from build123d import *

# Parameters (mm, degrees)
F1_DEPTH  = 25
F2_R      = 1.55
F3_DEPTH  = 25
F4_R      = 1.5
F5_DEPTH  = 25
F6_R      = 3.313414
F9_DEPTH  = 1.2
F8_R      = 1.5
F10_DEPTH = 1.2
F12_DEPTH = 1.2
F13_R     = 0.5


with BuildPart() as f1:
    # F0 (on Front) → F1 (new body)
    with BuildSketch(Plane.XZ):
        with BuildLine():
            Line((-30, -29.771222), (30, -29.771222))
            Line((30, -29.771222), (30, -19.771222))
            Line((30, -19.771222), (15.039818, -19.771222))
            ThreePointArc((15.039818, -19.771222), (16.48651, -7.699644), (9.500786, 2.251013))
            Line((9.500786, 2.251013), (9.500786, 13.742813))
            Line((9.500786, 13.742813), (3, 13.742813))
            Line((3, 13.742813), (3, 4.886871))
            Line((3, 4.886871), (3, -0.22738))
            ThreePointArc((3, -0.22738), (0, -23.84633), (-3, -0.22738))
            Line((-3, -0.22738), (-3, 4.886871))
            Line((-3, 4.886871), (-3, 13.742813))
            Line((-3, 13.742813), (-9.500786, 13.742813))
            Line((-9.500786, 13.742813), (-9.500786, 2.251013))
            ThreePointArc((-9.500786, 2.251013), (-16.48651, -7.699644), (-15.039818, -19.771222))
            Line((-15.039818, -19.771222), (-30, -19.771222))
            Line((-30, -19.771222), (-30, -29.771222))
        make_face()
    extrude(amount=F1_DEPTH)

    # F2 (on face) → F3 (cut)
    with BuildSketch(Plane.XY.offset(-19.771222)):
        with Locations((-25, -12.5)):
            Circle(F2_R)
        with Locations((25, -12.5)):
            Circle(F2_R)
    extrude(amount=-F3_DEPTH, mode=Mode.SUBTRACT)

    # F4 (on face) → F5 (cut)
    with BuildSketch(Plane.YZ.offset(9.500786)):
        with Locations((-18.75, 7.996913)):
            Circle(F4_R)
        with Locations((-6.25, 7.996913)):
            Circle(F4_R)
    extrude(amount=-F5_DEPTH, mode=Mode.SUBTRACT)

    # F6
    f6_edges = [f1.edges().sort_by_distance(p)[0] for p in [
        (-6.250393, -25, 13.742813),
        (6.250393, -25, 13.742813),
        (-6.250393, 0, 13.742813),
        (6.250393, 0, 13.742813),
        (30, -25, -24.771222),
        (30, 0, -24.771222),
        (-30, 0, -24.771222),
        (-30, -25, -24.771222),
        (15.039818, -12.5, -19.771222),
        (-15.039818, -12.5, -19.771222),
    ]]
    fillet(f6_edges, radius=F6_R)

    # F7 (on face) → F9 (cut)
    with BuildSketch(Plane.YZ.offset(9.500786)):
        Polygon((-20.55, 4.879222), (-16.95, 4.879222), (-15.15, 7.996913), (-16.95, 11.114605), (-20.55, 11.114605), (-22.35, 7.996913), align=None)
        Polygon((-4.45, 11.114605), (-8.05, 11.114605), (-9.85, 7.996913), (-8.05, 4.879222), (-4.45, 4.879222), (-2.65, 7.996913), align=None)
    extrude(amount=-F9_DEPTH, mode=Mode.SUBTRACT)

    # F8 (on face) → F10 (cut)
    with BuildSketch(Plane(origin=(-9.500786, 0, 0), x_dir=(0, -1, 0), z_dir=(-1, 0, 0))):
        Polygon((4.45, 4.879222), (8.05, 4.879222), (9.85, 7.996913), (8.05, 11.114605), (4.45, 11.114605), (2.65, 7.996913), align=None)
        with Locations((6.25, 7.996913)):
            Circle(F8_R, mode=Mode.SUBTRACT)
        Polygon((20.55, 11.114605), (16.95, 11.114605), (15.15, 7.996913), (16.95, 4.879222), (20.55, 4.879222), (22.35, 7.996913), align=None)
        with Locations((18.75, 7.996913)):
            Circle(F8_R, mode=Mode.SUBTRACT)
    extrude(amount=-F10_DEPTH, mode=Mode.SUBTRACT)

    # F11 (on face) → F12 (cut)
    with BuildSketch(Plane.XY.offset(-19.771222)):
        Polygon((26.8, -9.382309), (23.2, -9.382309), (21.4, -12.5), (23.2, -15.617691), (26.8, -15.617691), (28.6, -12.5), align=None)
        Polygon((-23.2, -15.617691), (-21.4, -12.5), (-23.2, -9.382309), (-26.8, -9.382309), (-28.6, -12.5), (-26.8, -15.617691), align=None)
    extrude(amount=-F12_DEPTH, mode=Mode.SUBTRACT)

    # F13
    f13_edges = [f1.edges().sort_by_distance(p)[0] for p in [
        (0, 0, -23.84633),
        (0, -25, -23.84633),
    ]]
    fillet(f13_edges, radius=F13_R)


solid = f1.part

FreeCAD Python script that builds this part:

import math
import FreeCAD as App
import Part
import Sketcher
Q = App.Units.Quantity


def edges_at(feature, points):
    """Names of the edges that pass closest to the given points."""
    edges = feature.Shape.Edges
    near = lambda p: min(range(len(edges)), key=lambda i: edges[i].distToShape(Part.Vertex(*p))[0])
    return sorted({f"Edge{near(p) + 1}" for p in points})

doc = App.newDocument("Part")
params = doc.addObject("Spreadsheet::Sheet", "Params")
for row, (alias, value) in enumerate([
    ("sketch1_radius", "17.000002 mm"),
    ("sketch1_radius2", "12 mm"),
    ("sketch1_width", "60 mm"),
    ("sketch1_height", "10 mm"),
    ("pad1_length", "25 mm"),
    ("sketch2_diameter", "3.1 mm"),
    ("pocket1_length", "25 mm"),
    ("sketch3_diameter", "3 mm"),
    ("pocket2_length", "25 mm"),
    ("fillet_radius", "3.313414 mm"),
    ("sketch4_width", "3.6 mm"),
    ("sketch4_length", "3.6 mm"),
    ("pocket3_length", "1.2 mm"),
    ("sketch5_diameter", "3 mm"),
    ("sketch5_width", "3.6 mm"),
    ("sketch5_length", "3.6 mm"),
    ("pocket4_length", "1.2 mm"),
    ("sketch6_width", "3.6 mm"),
    ("sketch6_length", "3.6 mm"),
    ("pocket5_length", "1.2 mm"),
    ("fillet2_radius", "0.5 mm"),
], start=1):
    params.set(f"A{row}", alias)
    params.set(f"B{row}", "=" + value)
    params.setAlias(f"B{row}", alias)

body = doc.addObject("PartDesign::Body", "Body")

sketch1 = body.newObject("Sketcher::SketchObject", "Sketch")
sketch1.AttachmentSupport = (doc.getObject("XZ_Plane"), [""])
sketch1.MapMode = "FlatFace"
sketch1.addGeometry(Part.LineSegment(App.Vector(-30, -30, 0), App.Vector(30, -30, 0)), False)
sketch1.addGeometry(Part.LineSegment(App.Vector(30, -30, 0), App.Vector(30, -20, 0)), False)
sketch1.addGeometry(Part.LineSegment(App.Vector(30, -20, 0), App.Vector(15, -20, 0)), False)
sketch1.addGeometry(Part.ArcOfCircle(Part.Circle(App.Vector(0, -12, 0), App.Vector(0, 0, 1), 17), math.radians(-28), math.radians(56)), False)
sketch1.addGeometry(Part.LineSegment(App.Vector(10, 2, 0), App.Vector(10, 14, 0)), False)
sketch1.addGeometry(Part.LineSegment(App.Vector(10, 14, 0), App.Vector(3, 14, 0)), False)
sketch1.addGeometry(Part.LineSegment(App.Vector(3, 14, 0), App.Vector(3, 0, 0)), False)
sketch1.addGeometry(Part.ArcOfCircle(Part.Circle(App.Vector(0, -12, 0), App.Vector(0, 0, 1), 12), math.radians(104), math.radians(436)), False)
sketch1.addGeometry(Part.LineSegment(App.Vector(-3, 0, 0), App.Vector(-3, 14, 0)), False)
sketch1.addGeometry(Part.LineSegment(App.Vector(-3, 14, 0), App.Vector(-10, 14, 0)), False)
sketch1.addGeometry(Part.LineSegment(App.Vector(-10, 14, 0), App.Vector(-10, 2, 0)), False)
sketch1.addGeometry(Part.ArcOfCircle(Part.Circle(App.Vector(0, -12, 0), App.Vector(0, 0, 1), 17), math.radians(124), math.radians(208)), False)
sketch1.addGeometry(Part.LineSegment(App.Vector(-15, -20, 0), App.Vector(-30, -20, 0)), False)
sketch1.addGeometry(Part.LineSegment(App.Vector(-30, -20, 0), App.Vector(-30, -30, 0)), False)
sketch1.addConstraint(Sketcher.Constraint("Coincident", 0, 2, 1, 1))
sketch1.addConstraint(Sketcher.Constraint("Coincident", 1, 2, 2, 1))
sketch1.addConstraint(Sketcher.Constraint("Coincident", 2, 2, 3, 1))
sketch1.addConstraint(Sketcher.Constraint("Coincident", 3, 2, 4, 1))
sketch1.addConstraint(Sketcher.Constraint("Coincident", 4, 2, 5, 1))
sketch1.addConstraint(Sketcher.Constraint("Coincident", 5, 2, 6, 1))
sketch1.addConstraint(Sketcher.Constraint("Coincident", 6, 2, 7, 2))
sketch1.addConstraint(Sketcher.Constraint("Coincident", 7, 1, 8, 1))
sketch1.addConstraint(Sketcher.Constraint("Coincident", 8, 2, 9, 1))
sketch1.addConstraint(Sketcher.Constraint("Coincident", 9, 2, 10, 1))
sketch1.addConstraint(Sketcher.Constraint("Coincident", 10, 2, 11, 1))
sketch1.addConstraint(Sketcher.Constraint("Coincident", 11, 2, 12, 1))
sketch1.addConstraint(Sketcher.Constraint("Coincident", 12, 2, 13, 1))
sketch1.addConstraint(Sketcher.Constraint("Coincident", 13, 2, 0, 1))
sketch1.addConstraint(Sketcher.Constraint("Horizontal", 0))
sketch1.addConstraint(Sketcher.Constraint("Vertical", 1))
sketch1.addConstraint(Sketcher.Constraint("Horizontal", 2))
sketch1.addConstraint(Sketcher.Constraint("Vertical", 4))
sketch1.addConstraint(Sketcher.Constraint("Horizontal", 5))
sketch1.addConstraint(Sketcher.Constraint("Vertical", 6))
sketch1.addConstraint(Sketcher.Constraint("Vertical", 8))
sketch1.addConstraint(Sketcher.Constraint("Horizontal", 9))
sketch1.addConstraint(Sketcher.Constraint("Vertical", 10))
sketch1.addConstraint(Sketcher.Constraint("Horizontal", 12))
sketch1.addConstraint(Sketcher.Constraint("Vertical", 13))
sketch1.addConstraint(Sketcher.Constraint("Coincident", 7, 3, 3, 3))
sketch1.addConstraint(Sketcher.Constraint("Coincident", 11, 3, 3, 3))
sketch1.addConstraint(Sketcher.Constraint("Equal", 3, 11))
sketch1.addConstraint(Sketcher.Constraint("Symmetric", 6, 2, 7, 1, -2))
sketch1.addConstraint(Sketcher.Constraint("Symmetric", 4, 2, 9, 2, -2))
sketch1.addConstraint(Sketcher.Constraint("Symmetric", 1, 2, 12, 2, -2))
sketch1.addConstraint(Sketcher.Constraint("Radius", 3, Q("17.000002 mm")))
sketch1.addConstraint(Sketcher.Constraint("Radius", 7, Q("12 mm")))
sketch1.addConstraint(Sketcher.Constraint("DistanceX", 0, 1, 0, 2, Q("60 mm")))
sketch1.addConstraint(Sketcher.Constraint("DistanceY", 1, 1, 1, 2, Q("10 mm")))
sketch1.addConstraint(Sketcher.Constraint("DistanceX", -1, 1, 5, 2, Q("3 mm")))
sketch1.addConstraint(Sketcher.Constraint("DistanceY", 4, 1, 4, 2, Q("11.4918 mm")))
sketch1.addConstraint(Sketcher.Constraint("DistanceX", 2, 2, 2, 1, Q("14.960182 mm")))
sketch1.addConstraint(Sketcher.Constraint("DistanceX", 5, 2, 5, 1, Q("6.500786 mm")))
sketch1.addConstraint(Sketcher.Constraint("DistanceY", 3, 3, -1, 1, Q("11.846331 mm")))
sketch1.setExpression("Constraints[31]", "Params.sketch1_radius")
sketch1.setExpression("Constraints[32]", "Params.sketch1_radius2")
sketch1.setExpression("Constraints[33]", "Params.sketch1_width")
sketch1.setExpression("Constraints[34]", "Params.sketch1_height")
pad1 = body.newObject("PartDesign::Pad", "Pad")
pad1.Profile = sketch1
pad1.setExpression("Length", "Params.pad1_length")

sketch2 = body.newObject("Sketcher::SketchObject", "Sketch001")
sketch2.AttachmentSupport = (doc.getObject("XY_Plane"), [""])
sketch2.MapMode = "FlatFace"
sketch2.AttachmentOffset = App.Placement(App.Vector(0, 0, -19.771222), App.Rotation())
sketch2.addGeometry(Part.Circle(App.Vector(-25, -12.5, 0), App.Vector(0, 0, 1), 1.6), False)
sketch2.addGeometry(Part.Circle(App.Vector(25, -12.5, 0), App.Vector(0, 0, 1), 1.6), False)
sketch2.addConstraint(Sketcher.Constraint("Equal", 0, 1))
sketch2.addConstraint(Sketcher.Constraint("Symmetric", 0, 3, 1, 3, -2))
sketch2.addConstraint(Sketcher.Constraint("Diameter", 0, Q("3.1 mm")))
sketch2.addConstraint(Sketcher.Constraint("DistanceX", 0, 3, -1, 1, Q("25 mm")))
sketch2.addConstraint(Sketcher.Constraint("DistanceY", 0, 3, -1, 1, Q("12.5 mm")))
sketch2.setExpression("Constraints[2]", "Params.sketch2_diameter")
pocket1 = body.newObject("PartDesign::Pocket", "Pocket")
pocket1.Profile = sketch2
pocket1.setExpression("Length", "Params.pocket1_length")

sketch3 = body.newObject("Sketcher::SketchObject", "Sketch002")
sketch3.AttachmentSupport = (doc.getObject("YZ_Plane"), [""])
sketch3.MapMode = "FlatFace"
sketch3.AttachmentOffset = App.Placement(App.Vector(0, 0, 9.500786), App.Rotation())
sketch3.addGeometry(Part.Circle(App.Vector(-18.8, 8, 0), App.Vector(0, 0, 1), 1.5), False)
sketch3.addGeometry(Part.Circle(App.Vector(-6.2, 8, 0), App.Vector(0, 0, 1), 1.5), False)
sketch3.addConstraint(Sketcher.Constraint("Equal", 0, 1))
sketch3.addConstraint(Sketcher.Constraint("Horizontal", 0, 3, 1, 3))
sketch3.addConstraint(Sketcher.Constraint("Diameter", 0, Q("3 mm")))
sketch3.addConstraint(Sketcher.Constraint("DistanceX", 0, 3, 1, 3, Q("12.5 mm")))
sketch3.addConstraint(Sketcher.Constraint("DistanceX", 0, 3, -1, 1, Q("18.75 mm")))
sketch3.addConstraint(Sketcher.Constraint("DistanceY", -1, 1, 0, 3, Q("7.996913 mm")))
sketch3.setExpression("Constraints[2]", "Params.sketch3_diameter")
pocket2 = body.newObject("PartDesign::Pocket", "Pocket001")
pocket2.Profile = sketch3
pocket2.setExpression("Length", "Params.pocket2_length")
doc.recompute()

fillet = body.newObject("PartDesign::Fillet", "Fillet")
fillet.Base = (pocket2, edges_at(pocket2, [
    (-6.25, -25, 13.743),
    (6.25, -25, 13.743),
    (-6.25, 0, 13.743),
    (6.25, 0, 13.743),
    (30, -25, -24.771),
    (30, 0, -24.771),
    (-30, 0, -24.771),
    (-30, -25, -24.771),
    (15.04, -12.5, -19.771),
    (-15.04, -12.5, -19.771),
]))
fillet.setExpression("Radius", "Params.fillet_radius")

sketch4 = body.newObject("Sketcher::SketchObject", "Sketch003")
sketch4.AttachmentSupport = (doc.getObject("YZ_Plane"), [""])
sketch4.MapMode = "FlatFace"
sketch4.AttachmentOffset = App.Placement(App.Vector(0, 0, 9.500786), App.Rotation())
sketch4.addGeometry(Part.LineSegment(App.Vector(-20.6, 4.9, 0), App.Vector(-16.9, 4.9, 0)), False)
sketch4.addGeometry(Part.LineSegment(App.Vector(-16.9, 4.9, 0), App.Vector(-15.2, 8, 0)), False)
sketch4.addGeometry(Part.LineSegment(App.Vector(-15.2, 8, 0), App.Vector(-16.9, 11.1, 0)), False)
sketch4.addGeometry(Part.LineSegment(App.Vector(-16.9, 11.1, 0), App.Vector(-20.6, 11.1, 0)), False)
sketch4.addGeometry(Part.LineSegment(App.Vector(-20.6, 11.1, 0), App.Vector(-22.4, 8, 0)), False)
sketch4.addGeometry(Part.LineSegment(App.Vector(-22.4, 8, 0), App.Vector(-20.6, 4.9, 0)), False)
sketch4.addGeometry(Part.LineSegment(App.Vector(-4.5, 11.1, 0), App.Vector(-8.1, 11.1, 0)), False)
sketch4.addGeometry(Part.LineSegment(App.Vector(-8.1, 11.1, 0), App.Vector(-9.8, 8, 0)), False)
sketch4.addGeometry(Part.LineSegment(App.Vector(-9.8, 8, 0), App.Vector(-8.1, 4.9, 0)), False)
sketch4.addGeometry(Part.LineSegment(App.Vector(-8.1, 4.9, 0), App.Vector(-4.5, 4.9, 0)), False)
sketch4.addGeometry(Part.LineSegment(App.Vector(-4.5, 4.9, 0), App.Vector(-2.6, 8, 0)), False)
sketch4.addGeometry(Part.LineSegment(App.Vector(-2.6, 8, 0), App.Vector(-4.5, 11.1, 0)), False)
sketch4.addConstraint(Sketcher.Constraint("Coincident", 0, 2, 1, 1))
sketch4.addConstraint(Sketcher.Constraint("Coincident", 1, 2, 2, 1))
sketch4.addConstraint(Sketcher.Constraint("Coincident", 2, 2, 3, 1))
sketch4.addConstraint(Sketcher.Constraint("Coincident", 3, 2, 4, 1))
sketch4.addConstraint(Sketcher.Constraint("Coincident", 4, 2, 5, 1))
sketch4.addConstraint(Sketcher.Constraint("Coincident", 5, 2, 0, 1))
sketch4.addConstraint(Sketcher.Constraint("Coincident", 6, 2, 7, 1))
sketch4.addConstraint(Sketcher.Constraint("Coincident", 7, 2, 8, 1))
sketch4.addConstraint(Sketcher.Constraint("Coincident", 8, 2, 9, 1))
sketch4.addConstraint(Sketcher.Constraint("Coincident", 9, 2, 10, 1))
sketch4.addConstraint(Sketcher.Constraint("Coincident", 10, 2, 11, 1))
sketch4.addConstraint(Sketcher.Constraint("Coincident", 11, 2, 6, 1))
sketch4.addConstraint(Sketcher.Constraint("Horizontal", 0))
sketch4.addConstraint(Sketcher.Constraint("Horizontal", 3))
sketch4.addConstraint(Sketcher.Constraint("Horizontal", 6))
sketch4.addConstraint(Sketcher.Constraint("Horizontal", 9))
sketch4.addConstraint(Sketcher.Constraint("Parallel", 1, 4))
sketch4.addConstraint(Sketcher.Constraint("Parallel", 2, 5))
sketch4.addConstraint(Sketcher.Constraint("Parallel", 4, 7))
sketch4.addConstraint(Sketcher.Constraint("Parallel", 5, 8))
sketch4.addConstraint(Sketcher.Constraint("Parallel", 7, 10))
sketch4.addConstraint(Sketcher.Constraint("Parallel", 8, 11))
sketch4.addConstraint(Sketcher.Constraint("Horizontal", 1, 2, 4, 2))
sketch4.addConstraint(Sketcher.Constraint("Horizontal", 3, 2, 6, 2))
sketch4.addConstraint(Sketcher.Constraint("Horizontal", 4, 2, 7, 2))
sketch4.addConstraint(Sketcher.Constraint("Horizontal", 5, 2, 8, 2))
sketch4.addConstraint(Sketcher.Constraint("Horizontal", 7, 2, 10, 2))
sketch4.addConstraint(Sketcher.Constraint("Vertical", 0, 2, 2, 2))
sketch4.addConstraint(Sketcher.Constraint("Vertical", 3, 2, 5, 2))
sketch4.addConstraint(Sketcher.Constraint("Equal", 3, 6))
sketch4.addConstraint(Sketcher.Constraint("Angle", 1, Q("59.999996 deg")))
sketch4.addConstraint(Sketcher.Constraint("DistanceX", 0, 1, 0, 2, Q("3.6 mm")))
sketch4.addConstraint(Sketcher.Constraint("Distance", 1, Q("3.6 mm")))
sketch4.addConstraint(Sketcher.Constraint("DistanceX", 1, 2, 6, 2, Q("7.1 mm")))
sketch4.addConstraint(Sketcher.Constraint("DistanceX", 0, 2, -1, 1, Q("16.95 mm")))
sketch4.addConstraint(Sketcher.Constraint("DistanceY", -1, 1, 0, 2, Q("4.879222 mm")))
sketch4.setExpression("Constraints[31]", "Params.sketch4_width")
sketch4.setExpression("Constraints[32]", "Params.sketch4_length")
pocket3 = body.newObject("PartDesign::Pocket", "Pocket002")
pocket3.Profile = sketch4
pocket3.setExpression("Length", "Params.pocket3_length")

sketch5 = body.newObject("Sketcher::SketchObject", "Sketch004")
sketch5.AttachmentSupport = (doc.getObject("YZ_Plane"), [""])
sketch5.MapMode = "FlatFace"
sketch5.AttachmentOffset = App.Placement(App.Vector(0, 0, -9.500786), App.Rotation())
sketch5.addGeometry(Part.LineSegment(App.Vector(-4.5, 4.9, 0), App.Vector(-8.1, 4.9, 0)), False)
sketch5.addGeometry(Part.LineSegment(App.Vector(-8.1, 4.9, 0), App.Vector(-9.8, 8, 0)), False)
sketch5.addGeometry(Part.LineSegment(App.Vector(-9.8, 8, 0), App.Vector(-8.1, 11.1, 0)), False)
sketch5.addGeometry(Part.LineSegment(App.Vector(-8.1, 11.1, 0), App.Vector(-4.5, 11.1, 0)), False)
sketch5.addGeometry(Part.LineSegment(App.Vector(-4.5, 11.1, 0), App.Vector(-2.6, 8, 0)), False)
sketch5.addGeometry(Part.LineSegment(App.Vector(-2.6, 8, 0), App.Vector(-4.5, 4.9, 0)), False)
sketch5.addGeometry(Part.Circle(App.Vector(-6.2, 8, 0), App.Vector(0, 0, 1), 1.5), False)
sketch5.addGeometry(Part.LineSegment(App.Vector(-20.6, 11.1, 0), App.Vector(-16.9, 11.1, 0)), False)
sketch5.addGeometry(Part.LineSegment(App.Vector(-16.9, 11.1, 0), App.Vector(-15.2, 8, 0)), False)
sketch5.addGeometry(Part.LineSegment(App.Vector(-15.2, 8, 0), App.Vector(-16.9, 4.9, 0)), False)
sketch5.addGeometry(Part.LineSegment(App.Vector(-16.9, 4.9, 0), App.Vector(-20.6, 4.9, 0)), False)
sketch5.addGeometry(Part.LineSegment(App.Vector(-20.6, 4.9, 0), App.Vector(-22.4, 8, 0)), False)
sketch5.addGeometry(Part.LineSegment(App.Vector(-22.4, 8, 0), App.Vector(-20.6, 11.1, 0)), False)
sketch5.addGeometry(Part.Circle(App.Vector(-18.8, 8, 0), App.Vector(0, 0, 1), 1.5), False)
sketch5.addConstraint(Sketcher.Constraint("Coincident", 0, 2, 1, 1))
sketch5.addConstraint(Sketcher.Constraint("Coincident", 1, 2, 2, 1))
sketch5.addConstraint(Sketcher.Constraint("Coincident", 2, 2, 3, 1))
sketch5.addConstraint(Sketcher.Constraint("Coincident", 3, 2, 4, 1))
sketch5.addConstraint(Sketcher.Constraint("Coincident", 4, 2, 5, 1))
sketch5.addConstraint(Sketcher.Constraint("Coincident", 5, 2, 0, 1))
sketch5.addConstraint(Sketcher.Constraint("Coincident", 7, 2, 8, 1))
sketch5.addConstraint(Sketcher.Constraint("Coincident", 8, 2, 9, 1))
sketch5.addConstraint(Sketcher.Constraint("Coincident", 9, 2, 10, 1))
sketch5.addConstraint(Sketcher.Constraint("Coincident", 10, 2, 11, 1))
sketch5.addConstraint(Sketcher.Constraint("Coincident", 11, 2, 12, 1))
sketch5.addConstraint(Sketcher.Constraint("Coincident", 12, 2, 7, 1))
sketch5.addConstraint(Sketcher.Constraint("Horizontal", 0))
sketch5.addConstraint(Sketcher.Constraint("Horizontal", 3))
sketch5.addConstraint(Sketcher.Constraint("Horizontal", 7))
sketch5.addConstraint(Sketcher.Constraint("Horizontal", 10))
sketch5.addConstraint(Sketcher.Constraint("Equal", 6, 13))
sketch5.addConstraint(Sketcher.Constraint("Parallel", 1, 4))
sketch5.addConstraint(Sketcher.Constraint("Parallel", 2, 5))
sketch5.addConstraint(Sketcher.Constraint("Parallel", 4, 8))
sketch5.addConstraint(Sketcher.Constraint("Parallel", 5, 9))
sketch5.addConstraint(Sketcher.Constraint("Parallel", 8, 11))
sketch5.addConstraint(Sketcher.Constraint("Parallel", 9, 12))
sketch5.addConstraint(Sketcher.Constraint("Horizontal", 6, 3, 13, 3))
sketch5.addConstraint(Sketcher.Constraint("Horizontal", 13, 3, 1, 2))
sketch5.addConstraint(Sketcher.Constraint("Horizontal", 1, 2, 4, 2))
sketch5.addConstraint(Sketcher.Constraint("Horizontal", 3, 2, 7, 2))
sketch5.addConstraint(Sketcher.Constraint("Horizontal", 4, 2, 8, 2))
sketch5.addConstraint(Sketcher.Constraint("Horizontal", 5, 2, 9, 2))
sketch5.addConstraint(Sketcher.Constraint("Horizontal", 8, 2, 11, 2))
sketch5.addConstraint(Sketcher.Constraint("Vertical", 0, 2, 2, 2))
sketch5.addConstraint(Sketcher.Constraint("Vertical", 3, 2, 5, 2))
sketch5.addConstraint(Sketcher.Constraint("Equal", 3, 7))
sketch5.addConstraint(Sketcher.Constraint("Diameter", 6, Q("3 mm")))
sketch5.addConstraint(Sketcher.Constraint("Angle", 1, Q("120.000004 deg")))
sketch5.addConstraint(Sketcher.Constraint("DistanceX", 0, 2, 0, 1, Q("3.6 mm")))
sketch5.addConstraint(Sketcher.Constraint("Distance", 1, Q("3.6 mm")))
sketch5.addConstraint(Sketcher.Constraint("DistanceX", 13, 3, 6, 3, Q("12.5 mm")))
sketch5.addConstraint(Sketcher.Constraint("DistanceX", 0, 2, 6, 3, Q("1.8 mm")))
sketch5.addConstraint(Sketcher.Constraint("DistanceX", 13, 3, 7, 2, Q("1.8 mm")))
sketch5.addConstraint(Sketcher.Constraint("DistanceX", 6, 3, -1, 1, Q("6.25 mm")))
sketch5.addConstraint(Sketcher.Constraint("DistanceY", -1, 1, 6, 3, Q("7.996913 mm")))
sketch5.setExpression("Constraints[33]", "Params.sketch5_diameter")
sketch5.setExpression("Constraints[35]", "Params.sketch5_width")
sketch5.setExpression("Constraints[36]", "Params.sketch5_length")
pocket4 = body.newObject("PartDesign::Pocket", "Pocket003")
pocket4.Profile = sketch5
pocket4.setExpression("Length", "Params.pocket4_length")
pocket4.Reversed = True

sketch6 = body.newObject("Sketcher::SketchObject", "Sketch005")
sketch6.AttachmentSupport = (doc.getObject("XY_Plane"), [""])
sketch6.MapMode = "FlatFace"
sketch6.AttachmentOffset = App.Placement(App.Vector(0, 0, -19.771222), App.Rotation())
sketch6.addGeometry(Part.LineSegment(App.Vector(26.8, -9.4, 0), App.Vector(23.2, -9.4, 0)), False)
sketch6.addGeometry(Part.LineSegment(App.Vector(23.2, -9.4, 0), App.Vector(21.4, -12.5, 0)), False)
sketch6.addGeometry(Part.LineSegment(App.Vector(21.4, -12.5, 0), App.Vector(23.2, -15.6, 0)), False)
sketch6.addGeometry(Part.LineSegment(App.Vector(23.2, -15.6, 0), App.Vector(26.8, -15.6, 0)), False)
sketch6.addGeometry(Part.LineSegment(App.Vector(26.8, -15.6, 0), App.Vector(28.6, -12.5, 0)), False)
sketch6.addGeometry(Part.LineSegment(App.Vector(28.6, -12.5, 0), App.Vector(26.8, -9.4, 0)), False)
sketch6.addGeometry(Part.LineSegment(App.Vector(-23.2, -15.6, 0), App.Vector(-21.4, -12.5, 0)), False)
sketch6.addGeometry(Part.LineSegment(App.Vector(-21.4, -12.5, 0), App.Vector(-23.2, -9.4, 0)), False)
sketch6.addGeometry(Part.LineSegment(App.Vector(-23.2, -9.4, 0), App.Vector(-26.8, -9.4, 0)), False)
sketch6.addGeometry(Part.LineSegment(App.Vector(-26.8, -9.4, 0), App.Vector(-28.6, -12.5, 0)), False)
sketch6.addGeometry(Part.LineSegment(App.Vector(-28.6, -12.5, 0), App.Vector(-26.8, -15.6, 0)), False)
sketch6.addGeometry(Part.LineSegment(App.Vector(-26.8, -15.6, 0), App.Vector(-23.2, -15.6, 0)), False)
sketch6.addConstraint(Sketcher.Constraint("Coincident", 0, 2, 1, 1))
sketch6.addConstraint(Sketcher.Constraint("Coincident", 1, 2, 2, 1))
sketch6.addConstraint(Sketcher.Constraint("Coincident", 2, 2, 3, 1))
sketch6.addConstraint(Sketcher.Constraint("Coincident", 3, 2, 4, 1))
sketch6.addConstraint(Sketcher.Constraint("Coincident", 4, 2, 5, 1))
sketch6.addConstraint(Sketcher.Constraint("Coincident", 5, 2, 0, 1))
sketch6.addConstraint(Sketcher.Constraint("Coincident", 6, 2, 7, 1))
sketch6.addConstraint(Sketcher.Constraint("Coincident", 7, 2, 8, 1))
sketch6.addConstraint(Sketcher.Constraint("Coincident", 8, 2, 9, 1))
sketch6.addConstraint(Sketcher.Constraint("Coincident", 9, 2, 10, 1))
sketch6.addConstraint(Sketcher.Constraint("Coincident", 10, 2, 11, 1))
sketch6.addConstraint(Sketcher.Constraint("Coincident", 11, 2, 6, 1))
sketch6.addConstraint(Sketcher.Constraint("Horizontal", 0))
sketch6.addConstraint(Sketcher.Constraint("Horizontal", 3))
sketch6.addConstraint(Sketcher.Constraint("Horizontal", 8))
sketch6.addConstraint(Sketcher.Constraint("Horizontal", 11))
sketch6.addConstraint(Sketcher.Constraint("Symmetric", 1, 2, 6, 2, -2))
sketch6.addConstraint(Sketcher.Constraint("Symmetric", 0, 2, 7, 2, -2))
sketch6.addConstraint(Sketcher.Constraint("Symmetric", 4, 2, 9, 2, -2))
sketch6.addConstraint(Sketcher.Constraint("Symmetric", 3, 2, 10, 2, -2))
sketch6.addConstraint(Sketcher.Constraint("Parallel", 1, 4))
sketch6.addConstraint(Sketcher.Constraint("Parallel", 2, 5))
sketch6.addConstraint(Sketcher.Constraint("Parallel", 4, 6))
sketch6.addConstraint(Sketcher.Constraint("Parallel", 5, 7))
sketch6.addConstraint(Sketcher.Constraint("Parallel", 6, 9))
sketch6.addConstraint(Sketcher.Constraint("Horizontal", 1, 2, 4, 2))
sketch6.addConstraint(Sketcher.Constraint("Vertical", 0, 2, 2, 2))
sketch6.addConstraint(Sketcher.Constraint("Angle", 1, Q("-120.000004 deg")))
sketch6.addConstraint(Sketcher.Constraint("DistanceX", 0, 2, 0, 1, Q("3.6 mm")))
sketch6.addConstraint(Sketcher.Constraint("DistanceX", 7, 2, 5, 2, Q("50 mm")))
sketch6.addConstraint(Sketcher.Constraint("Distance", 1, Q("3.6 mm")))
sketch6.addConstraint(Sketcher.Constraint("DistanceY", 1, 2, -1, 1, Q("12.5 mm")))
sketch6.setExpression("Constraints[28]", "Params.sketch6_width")
sketch6.setExpression("Constraints[30]", "Params.sketch6_length")
pocket5 = body.newObject("PartDesign::Pocket", "Pocket004")
pocket5.Profile = sketch6
pocket5.setExpression("Length", "Params.pocket5_length")
doc.recompute()

fillet2 = body.newObject("PartDesign::Fillet", "Fillet001")
fillet2.Base = (pocket5, edges_at(pocket5, [(0, 0, -23.846), (0, -25, -23.846)]))
fillet2.setExpression("Radius", "Params.fillet2_radius")

doc.recompute()
